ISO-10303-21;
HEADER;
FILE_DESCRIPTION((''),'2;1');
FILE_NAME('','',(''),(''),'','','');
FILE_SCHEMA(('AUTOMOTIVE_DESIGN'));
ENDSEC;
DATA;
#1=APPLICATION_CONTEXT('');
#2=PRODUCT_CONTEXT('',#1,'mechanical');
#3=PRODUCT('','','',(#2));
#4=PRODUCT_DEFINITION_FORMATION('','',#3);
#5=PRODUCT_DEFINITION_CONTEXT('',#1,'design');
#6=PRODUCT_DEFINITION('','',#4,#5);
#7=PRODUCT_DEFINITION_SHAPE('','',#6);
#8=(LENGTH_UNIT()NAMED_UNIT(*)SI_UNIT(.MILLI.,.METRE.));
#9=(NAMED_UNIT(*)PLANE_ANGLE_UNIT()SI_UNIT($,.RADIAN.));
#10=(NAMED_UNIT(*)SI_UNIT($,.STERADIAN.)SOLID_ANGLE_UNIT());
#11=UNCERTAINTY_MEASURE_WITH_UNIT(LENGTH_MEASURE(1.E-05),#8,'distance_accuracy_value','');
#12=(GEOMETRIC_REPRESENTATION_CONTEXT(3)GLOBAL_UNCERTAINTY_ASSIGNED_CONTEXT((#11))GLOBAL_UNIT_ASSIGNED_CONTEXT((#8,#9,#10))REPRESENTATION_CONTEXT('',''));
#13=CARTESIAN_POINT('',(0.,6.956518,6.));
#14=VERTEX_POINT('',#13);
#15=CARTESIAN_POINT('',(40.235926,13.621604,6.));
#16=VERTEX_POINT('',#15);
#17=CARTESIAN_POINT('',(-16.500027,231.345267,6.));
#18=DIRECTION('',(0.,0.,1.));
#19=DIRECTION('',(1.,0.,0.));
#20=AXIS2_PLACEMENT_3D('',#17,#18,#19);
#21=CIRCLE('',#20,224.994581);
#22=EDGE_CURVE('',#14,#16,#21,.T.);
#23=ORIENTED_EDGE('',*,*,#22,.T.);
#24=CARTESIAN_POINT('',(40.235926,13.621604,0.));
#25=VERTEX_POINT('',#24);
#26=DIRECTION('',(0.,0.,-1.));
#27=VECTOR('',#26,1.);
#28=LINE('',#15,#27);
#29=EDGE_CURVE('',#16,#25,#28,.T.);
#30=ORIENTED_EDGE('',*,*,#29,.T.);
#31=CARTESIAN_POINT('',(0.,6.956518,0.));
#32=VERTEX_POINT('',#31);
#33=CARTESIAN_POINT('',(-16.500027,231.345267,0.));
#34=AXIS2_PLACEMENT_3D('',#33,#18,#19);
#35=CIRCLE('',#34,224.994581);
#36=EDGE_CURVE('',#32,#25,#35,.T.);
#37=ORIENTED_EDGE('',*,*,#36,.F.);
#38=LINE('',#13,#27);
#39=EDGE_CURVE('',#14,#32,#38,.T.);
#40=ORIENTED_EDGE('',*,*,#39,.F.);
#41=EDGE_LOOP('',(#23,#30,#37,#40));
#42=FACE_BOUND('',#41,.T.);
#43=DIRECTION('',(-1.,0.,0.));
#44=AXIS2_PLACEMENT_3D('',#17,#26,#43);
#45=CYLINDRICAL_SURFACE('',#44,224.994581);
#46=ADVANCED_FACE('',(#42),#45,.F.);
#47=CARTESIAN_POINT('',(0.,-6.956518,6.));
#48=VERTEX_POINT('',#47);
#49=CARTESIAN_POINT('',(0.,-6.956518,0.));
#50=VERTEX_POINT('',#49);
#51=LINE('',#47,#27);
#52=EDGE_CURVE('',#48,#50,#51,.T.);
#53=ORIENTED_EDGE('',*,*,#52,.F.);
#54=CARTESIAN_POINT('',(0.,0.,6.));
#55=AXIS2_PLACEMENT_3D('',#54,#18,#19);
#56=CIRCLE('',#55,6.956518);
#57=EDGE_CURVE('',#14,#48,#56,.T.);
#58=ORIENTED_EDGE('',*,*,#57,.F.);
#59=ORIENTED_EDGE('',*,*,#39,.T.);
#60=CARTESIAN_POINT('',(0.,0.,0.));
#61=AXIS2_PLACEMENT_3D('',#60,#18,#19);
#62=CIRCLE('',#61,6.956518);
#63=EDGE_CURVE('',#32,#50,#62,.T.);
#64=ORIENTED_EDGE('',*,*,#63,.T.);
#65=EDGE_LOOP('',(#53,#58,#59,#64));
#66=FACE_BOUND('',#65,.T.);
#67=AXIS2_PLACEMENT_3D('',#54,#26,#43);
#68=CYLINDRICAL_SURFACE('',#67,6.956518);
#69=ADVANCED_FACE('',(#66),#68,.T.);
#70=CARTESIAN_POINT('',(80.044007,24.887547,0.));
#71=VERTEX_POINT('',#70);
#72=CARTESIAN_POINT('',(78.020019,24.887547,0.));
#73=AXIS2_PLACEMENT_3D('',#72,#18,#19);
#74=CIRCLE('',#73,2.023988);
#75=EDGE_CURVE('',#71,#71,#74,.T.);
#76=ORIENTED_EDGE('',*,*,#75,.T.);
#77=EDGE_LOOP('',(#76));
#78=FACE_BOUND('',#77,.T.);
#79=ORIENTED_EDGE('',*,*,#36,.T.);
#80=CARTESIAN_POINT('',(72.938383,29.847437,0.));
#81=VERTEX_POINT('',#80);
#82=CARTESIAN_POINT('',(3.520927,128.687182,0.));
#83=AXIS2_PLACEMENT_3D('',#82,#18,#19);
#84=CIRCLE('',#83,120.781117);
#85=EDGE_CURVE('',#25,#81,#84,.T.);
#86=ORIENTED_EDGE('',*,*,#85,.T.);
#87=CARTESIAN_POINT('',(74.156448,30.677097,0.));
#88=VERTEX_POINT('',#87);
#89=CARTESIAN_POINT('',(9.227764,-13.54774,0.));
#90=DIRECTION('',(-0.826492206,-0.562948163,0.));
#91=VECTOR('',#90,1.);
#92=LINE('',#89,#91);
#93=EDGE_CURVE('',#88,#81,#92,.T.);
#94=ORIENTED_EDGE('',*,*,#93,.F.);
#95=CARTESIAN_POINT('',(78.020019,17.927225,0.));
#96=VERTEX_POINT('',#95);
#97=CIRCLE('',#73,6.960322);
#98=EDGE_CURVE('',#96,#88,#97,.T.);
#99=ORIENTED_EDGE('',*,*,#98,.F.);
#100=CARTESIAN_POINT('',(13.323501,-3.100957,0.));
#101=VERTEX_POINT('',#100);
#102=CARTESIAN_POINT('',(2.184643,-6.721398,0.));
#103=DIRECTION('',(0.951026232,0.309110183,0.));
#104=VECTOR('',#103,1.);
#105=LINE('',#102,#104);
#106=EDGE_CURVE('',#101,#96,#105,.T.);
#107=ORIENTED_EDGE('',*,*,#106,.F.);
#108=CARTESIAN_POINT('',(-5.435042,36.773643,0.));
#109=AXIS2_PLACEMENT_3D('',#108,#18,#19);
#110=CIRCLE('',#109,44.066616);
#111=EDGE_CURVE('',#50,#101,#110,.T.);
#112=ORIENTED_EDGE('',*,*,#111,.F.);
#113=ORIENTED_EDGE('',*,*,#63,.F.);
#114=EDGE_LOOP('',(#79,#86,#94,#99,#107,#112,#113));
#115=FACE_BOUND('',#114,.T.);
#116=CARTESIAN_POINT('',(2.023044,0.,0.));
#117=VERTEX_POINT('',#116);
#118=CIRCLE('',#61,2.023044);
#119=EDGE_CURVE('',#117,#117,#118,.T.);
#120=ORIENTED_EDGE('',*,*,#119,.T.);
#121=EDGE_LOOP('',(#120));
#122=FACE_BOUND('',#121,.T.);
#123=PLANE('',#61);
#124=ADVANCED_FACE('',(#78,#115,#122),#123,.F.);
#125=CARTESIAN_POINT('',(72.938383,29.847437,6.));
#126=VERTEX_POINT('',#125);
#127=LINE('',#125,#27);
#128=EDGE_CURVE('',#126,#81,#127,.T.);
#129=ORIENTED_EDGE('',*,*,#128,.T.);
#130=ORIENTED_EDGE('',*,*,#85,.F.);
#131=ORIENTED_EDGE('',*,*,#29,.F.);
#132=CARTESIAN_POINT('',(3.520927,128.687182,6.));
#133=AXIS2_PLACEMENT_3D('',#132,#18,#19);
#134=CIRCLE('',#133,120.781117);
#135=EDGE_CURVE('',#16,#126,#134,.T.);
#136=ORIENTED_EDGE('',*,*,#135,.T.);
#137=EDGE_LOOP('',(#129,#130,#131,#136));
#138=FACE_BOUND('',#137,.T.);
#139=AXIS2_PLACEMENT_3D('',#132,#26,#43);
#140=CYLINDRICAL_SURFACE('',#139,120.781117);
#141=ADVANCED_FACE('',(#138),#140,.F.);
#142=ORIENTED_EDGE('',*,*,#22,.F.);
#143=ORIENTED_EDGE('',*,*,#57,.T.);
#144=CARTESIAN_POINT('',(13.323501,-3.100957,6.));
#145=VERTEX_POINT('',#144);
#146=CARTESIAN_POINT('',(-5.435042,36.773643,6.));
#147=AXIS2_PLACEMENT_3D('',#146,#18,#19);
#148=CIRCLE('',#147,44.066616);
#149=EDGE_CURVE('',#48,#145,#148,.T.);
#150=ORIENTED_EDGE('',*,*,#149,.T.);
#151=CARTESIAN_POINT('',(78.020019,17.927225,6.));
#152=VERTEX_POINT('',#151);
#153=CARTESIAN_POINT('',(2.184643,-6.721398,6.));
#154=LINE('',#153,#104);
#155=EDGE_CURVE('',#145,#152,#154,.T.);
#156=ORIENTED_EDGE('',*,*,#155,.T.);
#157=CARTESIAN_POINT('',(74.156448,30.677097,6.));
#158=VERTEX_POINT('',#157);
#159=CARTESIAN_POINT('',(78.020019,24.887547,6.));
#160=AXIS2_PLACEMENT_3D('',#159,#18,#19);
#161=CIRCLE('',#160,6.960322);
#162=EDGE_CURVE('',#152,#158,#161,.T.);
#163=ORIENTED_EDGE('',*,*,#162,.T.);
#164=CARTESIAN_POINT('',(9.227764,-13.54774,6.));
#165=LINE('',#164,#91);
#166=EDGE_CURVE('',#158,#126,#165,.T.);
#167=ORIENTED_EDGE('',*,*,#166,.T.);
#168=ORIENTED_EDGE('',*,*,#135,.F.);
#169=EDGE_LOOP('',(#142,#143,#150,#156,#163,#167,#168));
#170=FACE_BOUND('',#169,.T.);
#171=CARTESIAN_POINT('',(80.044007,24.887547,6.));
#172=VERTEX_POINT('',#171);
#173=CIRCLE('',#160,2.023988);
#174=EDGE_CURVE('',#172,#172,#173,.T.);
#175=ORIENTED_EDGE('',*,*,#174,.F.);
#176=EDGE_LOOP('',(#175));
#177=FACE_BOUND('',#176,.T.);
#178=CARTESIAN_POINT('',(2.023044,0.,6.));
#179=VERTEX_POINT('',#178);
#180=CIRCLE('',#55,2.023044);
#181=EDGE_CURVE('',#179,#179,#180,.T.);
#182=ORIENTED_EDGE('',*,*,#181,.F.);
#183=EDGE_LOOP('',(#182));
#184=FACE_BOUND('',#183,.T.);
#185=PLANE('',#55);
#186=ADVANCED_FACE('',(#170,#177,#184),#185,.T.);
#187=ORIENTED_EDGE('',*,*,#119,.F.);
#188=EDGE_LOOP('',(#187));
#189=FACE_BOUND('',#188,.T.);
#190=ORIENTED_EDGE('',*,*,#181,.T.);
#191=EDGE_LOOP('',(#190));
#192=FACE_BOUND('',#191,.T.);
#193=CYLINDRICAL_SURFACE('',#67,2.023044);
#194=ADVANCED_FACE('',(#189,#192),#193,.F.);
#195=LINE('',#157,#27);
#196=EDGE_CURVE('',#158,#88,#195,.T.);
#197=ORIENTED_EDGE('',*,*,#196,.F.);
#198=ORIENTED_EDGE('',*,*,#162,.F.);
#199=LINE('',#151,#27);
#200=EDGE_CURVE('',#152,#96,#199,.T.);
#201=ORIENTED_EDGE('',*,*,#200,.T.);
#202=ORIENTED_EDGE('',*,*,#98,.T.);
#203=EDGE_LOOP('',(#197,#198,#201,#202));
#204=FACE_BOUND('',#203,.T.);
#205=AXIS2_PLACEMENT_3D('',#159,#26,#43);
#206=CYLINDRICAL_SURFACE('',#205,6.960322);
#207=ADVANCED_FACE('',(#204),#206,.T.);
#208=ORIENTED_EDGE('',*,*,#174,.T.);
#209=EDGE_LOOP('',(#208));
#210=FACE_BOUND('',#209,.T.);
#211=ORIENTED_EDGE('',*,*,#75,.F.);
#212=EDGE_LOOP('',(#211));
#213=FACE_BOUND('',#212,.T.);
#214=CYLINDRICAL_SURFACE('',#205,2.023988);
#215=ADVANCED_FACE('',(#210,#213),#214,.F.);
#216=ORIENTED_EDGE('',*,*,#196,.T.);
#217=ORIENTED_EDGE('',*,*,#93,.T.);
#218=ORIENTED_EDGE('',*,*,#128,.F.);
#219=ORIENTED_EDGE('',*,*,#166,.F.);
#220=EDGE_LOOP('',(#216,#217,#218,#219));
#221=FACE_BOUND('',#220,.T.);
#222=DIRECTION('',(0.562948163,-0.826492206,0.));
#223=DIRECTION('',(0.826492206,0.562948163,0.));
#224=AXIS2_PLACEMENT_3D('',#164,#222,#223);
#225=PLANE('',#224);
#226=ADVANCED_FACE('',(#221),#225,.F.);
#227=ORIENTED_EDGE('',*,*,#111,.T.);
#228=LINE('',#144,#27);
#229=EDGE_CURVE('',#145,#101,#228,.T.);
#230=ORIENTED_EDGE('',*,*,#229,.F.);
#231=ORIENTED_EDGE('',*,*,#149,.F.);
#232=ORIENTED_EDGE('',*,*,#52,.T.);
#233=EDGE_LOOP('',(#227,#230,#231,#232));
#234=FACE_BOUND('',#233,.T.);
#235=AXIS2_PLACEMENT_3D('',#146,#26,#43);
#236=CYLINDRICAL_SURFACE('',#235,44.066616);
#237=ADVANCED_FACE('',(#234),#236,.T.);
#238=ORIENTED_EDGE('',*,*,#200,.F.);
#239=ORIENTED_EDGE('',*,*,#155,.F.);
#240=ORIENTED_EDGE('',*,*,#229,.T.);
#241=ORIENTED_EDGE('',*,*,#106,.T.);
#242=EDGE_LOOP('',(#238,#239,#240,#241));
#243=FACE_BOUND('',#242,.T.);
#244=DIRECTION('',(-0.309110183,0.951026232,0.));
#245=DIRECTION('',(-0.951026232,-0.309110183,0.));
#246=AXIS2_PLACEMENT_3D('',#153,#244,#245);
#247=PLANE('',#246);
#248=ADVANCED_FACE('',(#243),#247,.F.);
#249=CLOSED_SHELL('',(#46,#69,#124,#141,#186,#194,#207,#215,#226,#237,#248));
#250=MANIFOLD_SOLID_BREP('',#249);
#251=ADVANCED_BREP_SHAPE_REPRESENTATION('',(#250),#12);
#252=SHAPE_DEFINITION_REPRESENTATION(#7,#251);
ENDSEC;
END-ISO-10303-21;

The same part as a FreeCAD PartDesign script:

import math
import FreeCAD as App
import Part
import Sketcher

doc = App.newDocument("Part")
params = doc.addObject("Spreadsheet::Sheet", "Params")
for row, (alias, value) in enumerate([
    ("pad1_length", "6 mm"),
], start=1):
    params.set(f"A{row}", alias)
    params.set(f"B{row}", "=" + value)
    params.setAlias(f"B{row}", alias)

body = doc.addObject("PartDesign::Body", "Body")

sketch1 = body.newObject("Sketcher::SketchObject", "Sketch")
sketch1.AttachmentSupport = (doc.getObject("XY_Plane"), [""])
sketch1.MapMode = "FlatFace"
sketch1.addGeometry([
    Part.ArcOfCircle(Part.Circle(App.Vector(3.5, 128.7, 0), App.Vector(0, 0, 1), 120.8), math.radians(-72.3), math.radians(-54.92)),
    Part.ArcOfCircle(Part.Circle(App.Vector(-16.5, 231.3, 0), App.Vector(0, 0, 1), 225), math.radians(-85.79), math.radians(-75.39)),
    Part.ArcOfCircle(Part.Circle(App.Vector(0, 0, 0), App.Vector(0, 0, 1), 7), math.radians(90), math.radians(270)),
    Part.ArcOfCircle(Part.Circle(App.Vector(-5.4, 36.8, 0), App.Vector(0, 0, 1), 44.1), math.radians(-82.92), math.radians(-64.81)),
    Part.LineSegment(App.Vector(13.3, -3.1, 0), App.Vector(78, 17.9, 0)),
    Part.ArcOfCircle(Part.Circle(App.Vector(78, 24.9, 0), App.Vector(0, 0, 1), 7), math.radians(-90), math.radians(124)),
    Part.LineSegment(App.Vector(74.2, 30.7, 0), App.Vector(72.9, 29.8, 0)),
    Part.Circle(App.Vector(0, 0, 0), App.Vector(0, 0, 1), 2),
    Part.Circle(App.Vector(78, 24.9, 0), App.Vector(0, 0, 1), 2),
], False)
sketch1.addConstraint([
    Sketcher.Constraint("Coincident", 0, 1, 1, 2),
    Sketcher.Constraint("Coincident", 1, 1, 2, 1),
    Sketcher.Constraint("Coincident", 2, 2, 3, 1),
    Sketcher.Constraint("Coincident", 3, 2, 4, 1),
    Sketcher.Constraint("Coincident", 4, 2, 5, 1),
    Sketcher.Constraint("Coincident", 5, 2, 6, 1),
    Sketcher.Constraint("Coincident", 6, 2, 0, 2),
    Sketcher.Constraint("Coincident", 2, 3, -1, 1),
    Sketcher.Constraint("Coincident", 7, 3, -1, 1),
    Sketcher.Constraint("Coincident", 8, 3, 5, 3),
    Sketcher.Constraint("PointOnObject", 1, 1, -2),
    Sketcher.Constraint("PointOnObject", 2, 2, -2),
    Sketcher.Constraint("Vertical", 8, 3, 4, 2),
    Sketcher.Constraint("Radius", 1, 224.994581),
    Sketcher.Constraint("Radius", 5, 6.960322),
    Sketcher.Constraint("Diameter", 7, 4.046087),
    Sketcher.Constraint("Diameter", 8, 4.047976),
    Sketcher.Constraint("Radius", 0, 120.781117),
    Sketcher.Constraint("Radius", 2, 6.956518),
    Sketcher.Constraint("Radius", 3, 44.066616),
    Sketcher.Constraint("DistanceX", -1, 1, 3, 2, 13.323501),
    Sketcher.Constraint("Distance", 4, 68.028111),
    Sketcher.Constraint("DistanceY", -1, 1, 0, 3, 128.687182),
    Sketcher.Constraint("DistanceX", 3, 3, -1, 1, 5.435042),
    Sketcher.Constraint("DistanceX", -1, 1, 5, 3, 78.020019),
    Sketcher.Constraint("DistanceX", 3, 3, 0, 3, 8.955969),
    Sketcher.Constraint("DistanceY", 5, 3, 1, 3, 206.45772),
    Sketcher.Constraint("DistanceX", 5, 2, 5, 3, 3.863571),
    Sketcher.Constraint("DistanceY", 6, 2, 5, 2, 0.82966),
])
pad1 = body.newObject("PartDesign::Pad", "Pad")
pad1.Profile = sketch1
pad1.setExpression("Length", "Params.pad1_length")

doc.recompute()
